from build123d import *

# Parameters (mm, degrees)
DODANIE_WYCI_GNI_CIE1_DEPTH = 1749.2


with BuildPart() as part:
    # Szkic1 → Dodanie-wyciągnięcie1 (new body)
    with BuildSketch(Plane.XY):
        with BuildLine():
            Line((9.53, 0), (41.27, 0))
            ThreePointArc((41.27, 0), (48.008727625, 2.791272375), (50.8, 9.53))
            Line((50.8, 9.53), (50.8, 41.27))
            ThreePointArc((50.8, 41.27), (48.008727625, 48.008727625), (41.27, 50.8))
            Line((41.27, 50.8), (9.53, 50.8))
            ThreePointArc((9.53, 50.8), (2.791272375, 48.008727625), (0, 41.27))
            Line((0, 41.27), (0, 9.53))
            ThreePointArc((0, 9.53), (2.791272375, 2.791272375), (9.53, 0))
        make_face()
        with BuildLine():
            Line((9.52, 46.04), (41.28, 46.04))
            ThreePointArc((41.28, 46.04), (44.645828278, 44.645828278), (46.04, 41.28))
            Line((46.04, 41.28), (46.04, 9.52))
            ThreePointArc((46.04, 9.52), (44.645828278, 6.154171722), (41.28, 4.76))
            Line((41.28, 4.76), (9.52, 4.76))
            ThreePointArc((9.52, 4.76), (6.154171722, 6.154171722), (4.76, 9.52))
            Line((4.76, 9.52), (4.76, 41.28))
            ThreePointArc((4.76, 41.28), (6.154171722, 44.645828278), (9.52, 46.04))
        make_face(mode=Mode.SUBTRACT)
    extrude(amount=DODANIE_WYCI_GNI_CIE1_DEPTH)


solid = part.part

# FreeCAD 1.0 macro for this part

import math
import FreeCAD as App
import Part
import Sketcher
Q = App.Units.Quantity

doc = App.newDocument("Part")
params = doc.addObject("Spreadsheet::Sheet", "Params")
for row, (alias, value) in enumerate([
    ("sketch1_radius", "9.53 mm"),
    ("sketch1_radius2", "4.76 mm"),
    ("sketch1_width", "31.74 mm"),
    ("sketch1_width2", "31.76 mm"),
    ("pad1_length", "1749.2 mm"),
], start=1):
    params.set(f"A{row}", alias)
    params.set(f"B{row}", "=" + value)
    params.setAlias(f"B{row}", alias)

body = doc.addObject("PartDesign::Body", "Body")

# Sketch on XY plane
sketch1 = doc.addObject("Sketcher::SketchObject", "Sketch")
body.addObject(sketch1)
sketch1.AttachmentSupport = (doc.XY_Plane, [""])
sketch1.MapMode = "FlatFace"
sketch1.addGeometry([
    Part.LineSegment(App.Vector(9.53, 0, 0), App.Vector(41.27, 0, 0)),  # 0
    Part.ArcOfCircle(Part.Circle(App.Vector(41.27, 9.53, 0), App.Vector(0, 0, 1), 9.53), math.radians(-90), math.radians(0)),  # 1
    Part.LineSegment(App.Vector(50.8, 9.53, 0), App.Vector(50.8, 41.27, 0)),  # 2
    Part.ArcOfCircle(Part.Circle(App.Vector(41.27, 41.27, 0), App.Vector(0, 0, 1), 9.53), math.radians(0), math.radians(90)),  # 3
    Part.LineSegment(App.Vector(41.27, 50.8, 0), App.Vector(9.53, 50.8, 0)),  # 4
    Part.ArcOfCircle(Part.Circle(App.Vector(9.53, 41.27, 0), App.Vector(0, 0, 1), 9.53), math.radians(90), math.radians(180)),  # 5
    Part.LineSegment(App.Vector(0, 41.27, 0), App.Vector(0, 9.53, 0)),  # 6
    Part.ArcOfCircle(Part.Circle(App.Vector(9.53, 9.53, 0), App.Vector(0, 0, 1), 9.53), math.radians(180), math.radians(270)),  # 7
    Part.ArcOfCircle(Part.Circle(App.Vector(9.52, 41.28, 0), App.Vector(0, 0, 1), 4.76), math.radians(90), math.radians(180)),  # 8
    Part.LineSegment(App.Vector(9.52, 46.04, 0), App.Vector(41.28, 46.04, 0)),  # 9
    Part.ArcOfCircle(Part.Circle(App.Vector(41.28, 41.28, 0), App.Vector(0, 0, 1), 4.76), math.radians(0), math.radians(90)),  # 10
    Part.LineSegment(App.Vector(46.04, 41.28, 0), App.Vector(46.04, 9.52, 0)),  # 11
    Part.ArcOfCircle(Part.Circle(App.Vector(41.28, 9.52, 0), App.Vector(0, 0, 1), 4.76), math.radians(-90), math.radians(0)),  # 12
    Part.LineSegment(App.Vector(41.28, 4.76, 0), App.Vector(9.52, 4.76, 0)),  # 13
    Part.ArcOfCircle(Part.Circle(App.Vector(9.52, 9.52, 0), App.Vector(0, 0, 1), 4.76), math.radians(-180), math.radians(-90)),  # 14
    Part.LineSegment(App.Vector(4.76, 9.52, 0), App.Vector(4.76, 41.28, 0)),  # 15
], False)
sketch1.addConstraint([
    Sketcher.Constraint("Tangent", 0, 2, 1, 1),
    Sketcher.Constraint("Tangent", 1, 2, 2, 1),
    Sketcher.Constraint("Tangent", 2, 2, 3, 1),
    Sketcher.Constraint("Tangent", 3, 2, 4, 1),
    Sketcher.Constraint("Tangent", 4, 2, 5, 1),
    Sketcher.Constraint("Tangent", 5, 2, 6, 1),
    Sketcher.Constraint("Tangent", 6, 2, 7, 1),
    Sketcher.Constraint("Tangent", 7, 2, 0, 1),
    Sketcher.Constraint("Tangent", 8, 1, 9, 1),
    Sketcher.Constraint("Tangent", 9, 2, 10, 2),
    Sketcher.Constraint("Tangent", 10, 1, 11, 1),
    Sketcher.Constraint("Tangent", 11, 2, 12, 2),
    Sketcher.Constraint("Tangent", 12, 1, 13, 1),
    Sketcher.Constraint("Tangent", 13, 2, 14, 2),
    Sketcher.Constraint("Tangent", 14, 1, 15, 1),
    Sketcher.Constraint("Tangent", 15, 2, 8, 2),
    Sketcher.Constraint("Horizontal", 0),
    Sketcher.Constraint("Vertical", 2),
    Sketcher.Constraint("Horizontal", 4),
    Sketcher.Constraint("Vertical", 6),
    Sketcher.Constraint("Horizontal", 9),
    Sketcher.Constraint("Vertical", 11),
    Sketcher.Constraint("Horizontal", 13),
    Sketcher.Constraint("Vertical", 15),
    Sketcher.Constraint("Equal", 1, 3),
    Sketcher.Constraint("Equal", 3, 5),
    Sketcher.Constraint("Equal", 5, 7),
    Sketcher.Constraint("Equal", 8, 10),
    Sketcher.Constraint("Equal", 10, 12),
    Sketcher.Constraint("Equal", 12, 14),
    Sketcher.Constraint("PointOnObject", 0, 2, -1),
    Sketcher.Constraint("PointOnObject", 5, 2, -2),
    Sketcher.Constraint("Equal", 4, 2),
    Sketcher.Constraint("Equal", 13, 11),
    Sketcher.Constraint("Radius", 1, Q("9.53 mm")),
    Sketcher.Constraint("Radius", 8, Q("4.76 mm")),
    Sketcher.Constraint("DistanceX", 0, 1, 0, 2, Q("31.74 mm")),
    Sketcher.Constraint("DistanceX", 9, 1, 9, 2, Q("31.76 mm")),
    Sketcher.Constraint("DistanceX", -1, 1, 8, 3, Q("9.52 mm")),
    Sketcher.Constraint("DistanceY", -1, 1, 8, 3, Q("41.28 mm")),
])
sketch1.setExpression("Constraints[34]", "Params.sketch1_radius")
sketch1.setExpression("Constraints[35]", "Params.sketch1_radius2")
sketch1.setExpression("Constraints[36]", "Params.sketch1_width")
sketch1.setExpression("Constraints[37]", "Params.sketch1_width2")
pad1 = doc.addObject("PartDesign::Pad", "Pad")
body.addObject(pad1)
pad1.Profile = sketch1
pad1.setExpression("Length", "Params.pad1_length")

doc.recompute()
